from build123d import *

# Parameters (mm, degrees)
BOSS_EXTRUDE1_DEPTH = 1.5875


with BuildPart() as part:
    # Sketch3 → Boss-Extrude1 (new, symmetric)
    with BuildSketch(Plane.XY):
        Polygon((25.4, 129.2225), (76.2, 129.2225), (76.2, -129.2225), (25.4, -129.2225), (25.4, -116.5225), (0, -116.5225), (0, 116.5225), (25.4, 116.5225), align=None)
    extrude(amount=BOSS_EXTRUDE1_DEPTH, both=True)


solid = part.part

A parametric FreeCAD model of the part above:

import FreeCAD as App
import Part
import Sketcher

V = App.Vector
Q = App.Units.Quantity


def add_polygon(sketch, points):
    """Adds a closed chain of lines whose ends are joined by coincident constraints."""
    first, n = sketch.GeometryCount, len(points)
    for a, b in zip(points, points[1:] + points[:1]):
        sketch.addGeometry(Part.LineSegment(App.Vector(*a, 0), App.Vector(*b, 0)), False)
    for i in range(n):
        sketch.addConstraint(Sketcher.Constraint("Coincident", first + i, 2, first + (i + 1) % n, 1))

doc = App.newDocument("Part")
body = doc.addObject("PartDesign::Body", "Body")

sketch1 = doc.addObject("Sketcher::SketchObject", "Sketch")
body.addObject(sketch1)
sketch1.AttachmentSupport = (doc.XY_Plane, [""])
sketch1.MapMode = "FlatFace"
add_polygon(sketch1, [(76.2, 129.2225), (25.4, 129.2225), (25.4, 116.5225), (0, 116.5225), (0, -116.5225), (25.4, -116.5225), (25.4, -129.2225), (76.2, -129.2225)])
sketch1.addConstraint(Sketcher.Constraint("Horizontal", 0))
sketch1.addConstraint(Sketcher.Constraint("Vertical", 1))
sketch1.addConstraint(Sketcher.Constraint("Horizontal", 2))
sketch1.addConstraint(Sketcher.Constraint("Vertical", 3))
sketch1.addConstraint(Sketcher.Constraint("Horizontal", 4))
sketch1.addConstraint(Sketcher.Constraint("Vertical", 5))
sketch1.addConstraint(Sketcher.Constraint("Horizontal", 6))
sketch1.addConstraint(Sketcher.Constraint("Vertical", 7))
sketch1.addConstraint(Sketcher.Constraint("Symmetric", 2, 2, 3, 2, -1, 1))
sketch1.addConstraint(Sketcher.Constraint("Symmetric", 0, 2, 5, 2, -1))
sketch1.addConstraint(Sketcher.Constraint("DistanceX", 0, 2, 0, 1, Q("2 in")))
sketch1.addConstraint(Sketcher.Constraint("DistanceX", 2, 2, 2, 1, Q("1 in")))
sketch1.addConstraint(Sketcher.Constraint("DistanceY", 1, 2, 1, 1, Q("0.5 in")))
sketch1.addConstraint(Sketcher.Constraint("DistanceY", 3, 2, 3, 1, Q("9.175 in")))
pad1 = doc.addObject("PartDesign::Pad", "Pad")
body.addObject(pad1)
pad1.Profile = sketch1
pad1.Length = Q("0.125 in")
pad1.Midplane = True

doc.recompute()
